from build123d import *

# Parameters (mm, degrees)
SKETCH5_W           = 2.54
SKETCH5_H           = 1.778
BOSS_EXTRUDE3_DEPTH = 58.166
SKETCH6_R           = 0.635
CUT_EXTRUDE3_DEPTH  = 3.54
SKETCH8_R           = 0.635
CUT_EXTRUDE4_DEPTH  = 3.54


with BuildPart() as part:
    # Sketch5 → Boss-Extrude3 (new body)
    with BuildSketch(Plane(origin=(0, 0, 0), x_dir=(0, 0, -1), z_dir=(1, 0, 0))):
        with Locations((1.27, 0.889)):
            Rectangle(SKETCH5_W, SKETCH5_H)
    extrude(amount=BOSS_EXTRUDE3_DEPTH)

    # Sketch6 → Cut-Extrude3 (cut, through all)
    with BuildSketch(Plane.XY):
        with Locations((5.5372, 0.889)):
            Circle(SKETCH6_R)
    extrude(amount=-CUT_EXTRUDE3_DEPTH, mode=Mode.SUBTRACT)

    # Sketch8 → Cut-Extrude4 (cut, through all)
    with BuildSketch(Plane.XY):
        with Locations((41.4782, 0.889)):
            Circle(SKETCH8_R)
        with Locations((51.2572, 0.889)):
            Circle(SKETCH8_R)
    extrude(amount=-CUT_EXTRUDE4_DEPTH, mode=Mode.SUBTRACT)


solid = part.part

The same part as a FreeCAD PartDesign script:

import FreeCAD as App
import Part
import Sketcher
Q = App.Units.Quantity


def add_polygon(sketch, points):
    """Adds a closed chain of lines whose ends are joined by coincident constraints."""
    first, n = sketch.GeometryCount, len(points)
    for a, b in zip(points, points[1:] + points[:1]):
        sketch.addGeometry(Part.LineSegment(App.Vector(*a, 0), App.Vector(*b, 0)), False)
    for i in range(n):
        sketch.addConstraint(Sketcher.Constraint("Coincident", first + i, 2, first + (i + 1) % n, 1))

doc = App.newDocument("Part")
params = doc.addObject("Spreadsheet::Sheet", "Params")
for row, (alias, value) in enumerate([
    ("sketch1_height", "0.1 in"),
    ("sketch1_width", "0.07 in"),
    ("pad1_length", "2.29 in"),
    ("sketch2_diameter", "0.05 in"),
    ("sketch3_diameter", "0.05 in"),
], start=1):
    params.set(f"A{row}", alias)
    params.set(f"B{row}", "=" + value)
    params.setAlias(f"B{row}", alias)

body = doc.addObject("PartDesign::Body", "Body")

# Sketch on YZ plane
sketch1 = body.newObject("Sketcher::SketchObject", "Sketch")
sketch1.AttachmentSupport = (doc.getObject("YZ_Plane"), [""])
sketch1.MapMode = "FlatFace"
add_polygon(sketch1, [(1.778, 0), (0, 0), (0, -2.54), (1.778, -2.54)])  # lines 0-3
sketch1.addConstraint([
    Sketcher.Constraint("Horizontal", 0),
    Sketcher.Constraint("Vertical", 1),
    Sketcher.Constraint("Horizontal", 2),
    Sketcher.Constraint("Vertical", 3),
    Sketcher.Constraint("Coincident", 0, 2, -1, 1),
    Sketcher.Constraint("DistanceY", 1, 2, 1, 1, Q("0.1 in")),
    Sketcher.Constraint("DistanceX", 0, 2, 0, 1, Q("0.07 in")),
])
sketch1.setExpression("Constraints[9]", "Params.sketch1_height")
sketch1.setExpression("Constraints[10]", "Params.sketch1_width")
pad1 = body.newObject("PartDesign::Pad", "Pad")
pad1.Profile = sketch1
pad1.setExpression("Length", "Params.pad1_length")

# Sketch on XY plane
sketch2 = body.newObject("Sketcher::SketchObject", "Sketch001")
sketch2.AttachmentSupport = (doc.getObject("XY_Plane"), [""])
sketch2.MapMode = "FlatFace"
sketch2.addGeometry(Part.Circle(App.Vector(5.5372, 0.889, 0), App.Vector(0, 0, 1), 0.635), False)
sketch2.addConstraint([
    Sketcher.Constraint("Diameter", 0, Q("0.05 in")),
    Sketcher.Constraint("DistanceX", -1, 1, 0, 3, Q("0.218 in")),
    Sketcher.Constraint("DistanceY", -1, 1, 0, 3, Q("0.035 in")),
])
sketch2.setExpression("Constraints[0]", "Params.sketch2_diameter")
pocket1 = body.newObject("PartDesign::Pocket", "Pocket")
pocket1.Profile = sketch2
pocket1.Type = "ThroughAll"

# Sketch on XY plane
sketch3 = body.newObject("Sketcher::SketchObject", "Sketch002")
sketch3.AttachmentSupport = (doc.getObject("XY_Plane"), [""])
sketch3.MapMode = "FlatFace"
sketch3.addGeometry([
    Part.Circle(App.Vector(41.4782, 0.889, 0), App.Vector(0, 0, 1), 0.635),
    Part.Circle(App.Vector(51.2572, 0.889, 0), App.Vector(0, 0, 1), 0.635),
], False)
sketch3.addConstraint([
    Sketcher.Constraint("Equal", 0, 1),
    Sketcher.Constraint("Horizontal", 0, 3, 1, 3),
    Sketcher.Constraint("Diameter", 0, Q("0.05 in")),
    Sketcher.Constraint("DistanceX", -1, 1, 0, 3, Q("1.633 in")),
    Sketcher.Constraint("DistanceY", -1, 1, 0, 3, Q("0.035 in")),
    Sketcher.Constraint("DistanceX", -1, 1, 1, 3, Q("2.018 in")),
])
sketch3.setExpression("Constraints[2]", "Params.sketch3_diameter")
pocket2 = body.newObject("PartDesign::Pocket", "Pocket001")
pocket2.Profile = sketch3
pocket2.Type = "ThroughAll"

doc.recompute()
